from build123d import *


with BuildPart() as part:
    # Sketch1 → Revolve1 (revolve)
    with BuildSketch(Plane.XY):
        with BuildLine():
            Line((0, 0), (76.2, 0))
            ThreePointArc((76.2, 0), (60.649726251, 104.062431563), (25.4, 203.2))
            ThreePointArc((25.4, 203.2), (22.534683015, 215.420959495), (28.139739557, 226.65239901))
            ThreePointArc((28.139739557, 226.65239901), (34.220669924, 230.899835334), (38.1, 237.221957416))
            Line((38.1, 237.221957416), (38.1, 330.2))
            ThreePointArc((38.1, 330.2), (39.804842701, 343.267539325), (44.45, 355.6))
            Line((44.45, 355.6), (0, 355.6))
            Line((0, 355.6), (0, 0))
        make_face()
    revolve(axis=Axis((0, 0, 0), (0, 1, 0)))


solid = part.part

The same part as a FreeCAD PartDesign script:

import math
import FreeCAD as App
import Part
import Sketcher
Q = App.Units.Quantity

doc = App.newDocument("Part")
body = doc.addObject("PartDesign::Body", "Body")

sketch1 = doc.addObject("Sketcher::SketchObject", "Sketch")
body.addObject(sketch1)
sketch1.AttachmentSupport = (doc.XY_Plane, [""])
sketch1.MapMode = "FlatFace"
sketch1.addGeometry([
    Part.LineSegment(App.Vector(0, 0, 0), App.Vector(76, 0, 0)),
    Part.ArcOfCircle(Part.Circle(App.Vector(-468, -28, 0), App.Vector(0, 0, 1), 545), math.radians(3), math.radians(25)),
    Part.ArcOfCircle(Part.Circle(App.Vector(41, 213, 0), App.Vector(0, 0, 1), 18), math.radians(134), math.radians(213)),
    Part.ArcOfCircle(Part.Circle(App.Vector(21, 243, 0), App.Vector(0, 0, 1), 18), math.radians(-67), math.radians(-20)),
    Part.LineSegment(App.Vector(38, 237, 0), App.Vector(38, 330, 0)),
    Part.ArcOfCircle(Part.Circle(App.Vector(95, 329, 0), App.Vector(0, 0, 1), 57), math.radians(153), math.radians(179)),
    Part.LineSegment(App.Vector(44, 356, 0), App.Vector(0, 356, 0)),
    Part.LineSegment(App.Vector(0, 356, 0), App.Vector(0, 0, 0)),
], False)
sketch1.addConstraint([
    Sketcher.Constraint("Coincident", 0, 2, 1, 1),
    Sketcher.Constraint("Coincident", 1, 2, 2, 2),
    Sketcher.Constraint("Coincident", 2, 1, 3, 1),
    Sketcher.Constraint("Coincident", 3, 2, 4, 1),
    Sketcher.Constraint("Coincident", 4, 2, 5, 2),
    Sketcher.Constraint("Coincident", 5, 1, 6, 1),
    Sketcher.Constraint("Coincident", 6, 2, 7, 1),
    Sketcher.Constraint("Coincident", 7, 2, 0, 1),
    Sketcher.Constraint("Horizontal", 0),
    Sketcher.Constraint("Vertical", 4),
    Sketcher.Constraint("Horizontal", 6),
    Sketcher.Constraint("Vertical", 7),
    Sketcher.Constraint("Coincident", 7, 2, -1, 1),
    Sketcher.Constraint("DistanceX", 0, 1, 0, 2, Q("3 in")),
    Sketcher.Constraint("DistanceY", 7, 2, 7, 1, Q("14 in")),
    Sketcher.Constraint("DistanceX", -1, 1, 1, 2, Q("1 in")),
    Sketcher.Constraint("DistanceY", -1, 1, 4, 2, Q("13 in")),
    Sketcher.Constraint("DistanceX", 6, 2, 6, 1, Q("1.75 in")),
    Sketcher.Constraint("DistanceX", -1, 1, 3, 2, Q("1.5 in")),
    Sketcher.Constraint("Radius", 1, Q("545.205723 mm")),
    Sketcher.Constraint("Radius", 2, Q("18.475883 mm")),
    Sketcher.Constraint("Radius", 3, Q("18.187175 mm")),
    Sketcher.Constraint("Radius", 5, Q("57.300606 mm")),
    Sketcher.Constraint("DistanceY", -1, 1, 2, 1, Q("226.652399 mm")),
    Sketcher.Constraint("DistanceY", 4, 1, 4, 2, Q("92.978043 mm")),
    Sketcher.Constraint("DistanceY", 1, 3, -1, 1, Q("28.169379 mm")),
    Sketcher.Constraint("DistanceX", -1, 1, 2, 3, Q("40.88577 mm")),
])
revolution = doc.addObject("PartDesign::Revolution", "Revolution")
body.addObject(revolution)
revolution.Profile = sketch1
revolution.ReferenceAxis = (sketch1, ["V_Axis"])
revolution.Angle = 360

doc.recompute()
